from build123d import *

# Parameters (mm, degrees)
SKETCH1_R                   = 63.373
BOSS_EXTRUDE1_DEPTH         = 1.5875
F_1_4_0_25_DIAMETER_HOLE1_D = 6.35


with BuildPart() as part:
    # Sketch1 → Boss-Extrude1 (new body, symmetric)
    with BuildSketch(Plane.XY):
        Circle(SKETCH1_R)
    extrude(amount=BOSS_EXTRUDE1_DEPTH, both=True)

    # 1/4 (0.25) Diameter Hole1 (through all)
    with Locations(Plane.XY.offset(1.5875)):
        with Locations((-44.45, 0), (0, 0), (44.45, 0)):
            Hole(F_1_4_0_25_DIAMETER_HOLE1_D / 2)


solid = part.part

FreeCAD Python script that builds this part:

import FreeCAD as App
import Part
import Sketcher
from FreeCAD import Vector
Q = App.Units.Quantity

doc = App.newDocument("Part")
body = doc.addObject("PartDesign::Body", "Body")

# Sketch on XY plane
sketch1 = doc.addObject("Sketcher::SketchObject", "Sketch")
body.addObject(sketch1)
sketch1.AttachmentSupport = (doc.XY_Plane, [""])
sketch1.MapMode = "FlatFace"
sketch1.addGeometry(Part.Circle(Vector(0, 0, 0), Vector(0, 0, 1), 63), False)
sketch1.addConstraint([
    Sketcher.Constraint("Coincident", 0, 3, -1, 1),
    Sketcher.Constraint("Diameter", 0, Q("4.99 in")),
])
pad1 = doc.addObject("PartDesign::Pad", "Pad")
body.addObject(pad1)
pad1.Profile = sketch1
pad1.Length = Q("0.125 in")
pad1.Midplane = True

# Sketch on XY plane
sketch2 = doc.addObject("Sketcher::SketchObject", "Sketch001")
body.addObject(sketch2)
sketch2.AttachmentSupport = (doc.XY_Plane, [""])
sketch2.MapMode = "FlatFace"
sketch2.AttachmentOffset = App.Placement(Vector(0, 0, 0.0625 * 25.4), App.Rotation())
sketch2.addGeometry([
    Part.Circle(Vector(-44.5, 0, 0), Vector(0, 0, 1), 3.2),
    Part.Circle(Vector(0, 0, 0), Vector(0, 0, 1), 3.2),
    Part.Circle(Vector(44.5, 0, 0), Vector(0, 0, 1), 3.2),
], False)
sketch2.addConstraint([
    Sketcher.Constraint("Coincident", 1, 3, -1, 1),
    Sketcher.Constraint("Equal", 0, 1),
    Sketcher.Constraint("Equal", 1, 2),
    Sketcher.Constraint("Symmetric", 0, 3, 2, 3, -1, 1),
    Sketcher.Constraint("PointOnObject", 0, 3, -1),
    Sketcher.Constraint("Diameter", 0, Q("0.25 in")),
    Sketcher.Constraint("DistanceX", 0, 3, 2, 3, Q("3.5 in")),
])
doc.recompute()
hole = doc.addObject("PartDesign::Hole", "Hole")
body.addObject(hole)
hole.Profile = sketch2
hole.ThreadType = "None"
hole.Diameter = Q("0.25 in")
hole.DepthType = "ThroughAll"

doc.recompute()
